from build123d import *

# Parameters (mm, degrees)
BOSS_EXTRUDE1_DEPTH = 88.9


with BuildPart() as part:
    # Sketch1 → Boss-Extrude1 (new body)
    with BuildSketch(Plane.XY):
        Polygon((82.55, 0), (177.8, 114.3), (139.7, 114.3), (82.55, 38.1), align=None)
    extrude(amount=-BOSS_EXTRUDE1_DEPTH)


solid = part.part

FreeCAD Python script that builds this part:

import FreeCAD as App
import Part
import Sketcher
from FreeCAD import Vector
Q = App.Units.Quantity


def add_polygon(sketch, points):
    """Adds a closed chain of lines whose ends are joined by coincident constraints."""
    first, n = sketch.GeometryCount, len(points)
    for a, b in zip(points, points[1:] + points[:1]):
        sketch.addGeometry(Part.LineSegment(App.Vector(*a, 0), App.Vector(*b, 0)), False)
    for i in range(n):
        sketch.addConstraint(Sketcher.Constraint("Coincident", first + i, 2, first + (i + 1) % n, 1))

doc = App.newDocument("Part")
body = doc.addObject("PartDesign::Body", "Body")

sketch1 = doc.addObject("Sketcher::SketchObject", "Sketch")
body.addObject(sketch1)
sketch1.AttachmentSupport = (doc.XY_Plane, [""])
sketch1.MapMode = "FlatFace"
add_polygon(sketch1, [(82.55, 0), (177.8, 114.3), (139.7, 114.3), (82.55, 38.1)])
sketch1.addConstraint(Sketcher.Constraint("Horizontal", 1))
sketch1.addConstraint(Sketcher.Constraint("Vertical", 3))
sketch1.addConstraint(Sketcher.Constraint("PointOnObject", 3, 2, -1))
sketch1.addConstraint(Sketcher.Constraint("Equal", 1, 3))
sketch1.addConstraint(Sketcher.Constraint("DistanceX", 1, 2, 1, 1, Q("1.5 in")))
sketch1.addConstraint(Sketcher.Constraint("DistanceX", -1, 1, 0, 2, Q("7 in")))
sketch1.addConstraint(Sketcher.Constraint("DistanceY", 2, 2, 1, 2, Q("3 in")))
sketch1.addConstraint(Sketcher.Constraint("Distance", 2, Q("3.75 in")))
pad1 = doc.addObject("PartDesign::Pad", "Pad")
body.addObject(pad1)
pad1.Profile = sketch1
pad1.Length = Q("3.5 in")
pad1.Reversed = True

doc.recompute()
